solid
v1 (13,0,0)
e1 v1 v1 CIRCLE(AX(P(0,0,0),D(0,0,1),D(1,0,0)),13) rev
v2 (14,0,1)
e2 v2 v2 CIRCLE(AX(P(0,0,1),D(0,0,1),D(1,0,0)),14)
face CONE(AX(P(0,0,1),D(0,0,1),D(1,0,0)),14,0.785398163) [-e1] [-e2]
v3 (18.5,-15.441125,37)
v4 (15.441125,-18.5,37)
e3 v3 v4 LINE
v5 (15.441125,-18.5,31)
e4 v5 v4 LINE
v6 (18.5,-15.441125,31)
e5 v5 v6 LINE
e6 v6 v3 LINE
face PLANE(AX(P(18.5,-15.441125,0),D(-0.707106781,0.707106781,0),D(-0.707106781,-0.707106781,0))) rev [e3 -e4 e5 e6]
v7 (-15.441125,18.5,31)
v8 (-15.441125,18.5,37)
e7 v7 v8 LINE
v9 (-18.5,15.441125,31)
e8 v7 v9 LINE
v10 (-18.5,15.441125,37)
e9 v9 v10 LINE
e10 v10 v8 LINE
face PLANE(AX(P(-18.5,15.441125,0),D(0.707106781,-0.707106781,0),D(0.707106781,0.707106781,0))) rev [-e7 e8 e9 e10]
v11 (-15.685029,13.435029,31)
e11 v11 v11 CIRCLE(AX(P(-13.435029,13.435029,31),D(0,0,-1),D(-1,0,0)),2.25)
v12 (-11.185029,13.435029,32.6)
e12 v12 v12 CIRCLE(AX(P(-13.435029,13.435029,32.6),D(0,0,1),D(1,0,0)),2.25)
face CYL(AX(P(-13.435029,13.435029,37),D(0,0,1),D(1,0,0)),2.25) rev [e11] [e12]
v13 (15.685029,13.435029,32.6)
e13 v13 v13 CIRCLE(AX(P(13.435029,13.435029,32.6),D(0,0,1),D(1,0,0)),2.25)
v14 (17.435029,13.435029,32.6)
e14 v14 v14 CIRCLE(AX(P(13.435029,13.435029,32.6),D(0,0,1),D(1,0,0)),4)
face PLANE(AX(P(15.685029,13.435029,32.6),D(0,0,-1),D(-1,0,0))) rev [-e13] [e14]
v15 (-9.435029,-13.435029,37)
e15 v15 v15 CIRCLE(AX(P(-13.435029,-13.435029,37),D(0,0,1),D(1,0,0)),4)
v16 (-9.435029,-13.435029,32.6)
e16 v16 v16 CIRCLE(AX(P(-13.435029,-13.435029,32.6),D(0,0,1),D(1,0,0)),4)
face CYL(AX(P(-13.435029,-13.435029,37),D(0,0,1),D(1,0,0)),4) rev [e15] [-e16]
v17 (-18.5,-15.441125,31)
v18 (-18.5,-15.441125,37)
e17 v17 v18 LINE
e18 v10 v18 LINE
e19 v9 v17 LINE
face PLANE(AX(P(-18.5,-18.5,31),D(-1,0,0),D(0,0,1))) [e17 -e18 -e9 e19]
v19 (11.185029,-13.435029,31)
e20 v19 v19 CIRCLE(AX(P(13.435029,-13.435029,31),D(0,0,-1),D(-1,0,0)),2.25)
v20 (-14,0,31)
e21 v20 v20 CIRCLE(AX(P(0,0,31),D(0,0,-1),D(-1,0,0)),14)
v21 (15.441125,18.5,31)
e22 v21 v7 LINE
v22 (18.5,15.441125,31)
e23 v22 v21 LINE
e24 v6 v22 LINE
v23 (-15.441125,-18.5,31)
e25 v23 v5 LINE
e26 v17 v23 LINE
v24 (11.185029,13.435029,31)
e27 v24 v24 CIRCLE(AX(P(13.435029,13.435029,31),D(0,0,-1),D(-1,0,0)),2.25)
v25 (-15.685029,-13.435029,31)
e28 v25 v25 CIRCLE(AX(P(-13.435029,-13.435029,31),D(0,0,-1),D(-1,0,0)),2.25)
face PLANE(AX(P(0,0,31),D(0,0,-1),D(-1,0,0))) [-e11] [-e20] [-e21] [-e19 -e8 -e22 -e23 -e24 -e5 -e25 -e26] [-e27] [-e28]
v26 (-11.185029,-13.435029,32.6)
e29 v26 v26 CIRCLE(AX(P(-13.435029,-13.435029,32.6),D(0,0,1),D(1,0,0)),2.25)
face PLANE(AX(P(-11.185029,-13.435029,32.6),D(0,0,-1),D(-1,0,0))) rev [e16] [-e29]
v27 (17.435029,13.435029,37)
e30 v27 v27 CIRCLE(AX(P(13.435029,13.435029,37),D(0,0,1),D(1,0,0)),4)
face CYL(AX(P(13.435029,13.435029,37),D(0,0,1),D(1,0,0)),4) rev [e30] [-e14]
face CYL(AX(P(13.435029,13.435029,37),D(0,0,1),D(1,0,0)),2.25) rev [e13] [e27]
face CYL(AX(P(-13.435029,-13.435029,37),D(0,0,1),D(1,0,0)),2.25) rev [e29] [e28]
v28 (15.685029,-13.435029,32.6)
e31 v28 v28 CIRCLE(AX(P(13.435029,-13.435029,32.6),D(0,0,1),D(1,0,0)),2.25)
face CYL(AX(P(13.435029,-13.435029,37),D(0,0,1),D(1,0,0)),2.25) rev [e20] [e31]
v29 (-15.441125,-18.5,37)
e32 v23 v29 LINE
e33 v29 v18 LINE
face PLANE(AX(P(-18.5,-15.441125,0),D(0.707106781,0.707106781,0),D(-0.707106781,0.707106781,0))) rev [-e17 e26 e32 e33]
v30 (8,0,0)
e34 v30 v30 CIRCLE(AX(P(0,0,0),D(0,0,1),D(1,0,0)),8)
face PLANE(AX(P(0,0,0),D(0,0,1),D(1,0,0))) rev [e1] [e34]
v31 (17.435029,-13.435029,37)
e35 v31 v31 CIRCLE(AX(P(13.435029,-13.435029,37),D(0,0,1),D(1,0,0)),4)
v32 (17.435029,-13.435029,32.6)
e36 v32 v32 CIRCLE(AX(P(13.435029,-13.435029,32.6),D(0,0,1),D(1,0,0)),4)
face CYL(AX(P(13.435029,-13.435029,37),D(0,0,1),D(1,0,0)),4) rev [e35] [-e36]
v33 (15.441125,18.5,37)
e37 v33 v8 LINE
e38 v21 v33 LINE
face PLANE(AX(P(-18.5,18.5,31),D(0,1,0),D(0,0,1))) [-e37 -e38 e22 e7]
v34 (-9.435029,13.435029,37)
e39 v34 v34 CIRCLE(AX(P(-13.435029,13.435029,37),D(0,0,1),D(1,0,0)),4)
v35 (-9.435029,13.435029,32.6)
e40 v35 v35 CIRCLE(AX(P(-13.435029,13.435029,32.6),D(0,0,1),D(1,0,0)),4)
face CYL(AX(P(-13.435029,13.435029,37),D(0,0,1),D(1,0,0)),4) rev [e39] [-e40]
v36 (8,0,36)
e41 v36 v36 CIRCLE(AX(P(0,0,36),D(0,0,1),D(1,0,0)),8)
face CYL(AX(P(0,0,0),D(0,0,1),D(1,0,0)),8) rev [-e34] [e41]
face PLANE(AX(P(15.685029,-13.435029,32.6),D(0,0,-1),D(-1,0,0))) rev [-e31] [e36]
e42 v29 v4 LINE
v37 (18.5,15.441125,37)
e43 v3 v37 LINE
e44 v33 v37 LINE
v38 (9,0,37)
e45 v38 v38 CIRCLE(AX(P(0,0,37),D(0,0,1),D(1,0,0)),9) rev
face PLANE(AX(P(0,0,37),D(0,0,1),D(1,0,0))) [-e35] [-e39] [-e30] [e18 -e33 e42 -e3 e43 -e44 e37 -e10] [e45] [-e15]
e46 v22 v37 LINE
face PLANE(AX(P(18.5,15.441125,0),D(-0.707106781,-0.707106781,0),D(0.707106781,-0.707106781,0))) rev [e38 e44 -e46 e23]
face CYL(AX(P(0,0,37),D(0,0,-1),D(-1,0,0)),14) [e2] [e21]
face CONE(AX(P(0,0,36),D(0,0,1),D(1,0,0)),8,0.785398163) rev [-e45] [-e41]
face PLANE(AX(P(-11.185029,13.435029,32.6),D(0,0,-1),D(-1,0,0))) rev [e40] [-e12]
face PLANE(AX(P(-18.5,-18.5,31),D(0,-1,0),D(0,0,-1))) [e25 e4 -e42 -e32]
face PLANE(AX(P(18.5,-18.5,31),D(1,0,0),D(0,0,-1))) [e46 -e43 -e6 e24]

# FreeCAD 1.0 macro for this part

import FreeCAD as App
import Part
import Sketcher


def edges_at(feature, points):
    """Names of the edges that pass closest to the given points."""
    edges = feature.Shape.Edges
    near = lambda p: min(range(len(edges)), key=lambda i: edges[i].distToShape(Part.Vertex(*p))[0])
    return sorted({f"Edge{near(p) + 1}" for p in points})


def add_polygon(sketch, points):
    """Adds a closed chain of lines whose ends are joined by coincident constraints."""
    first, n = sketch.GeometryCount, len(points)
    for a, b in zip(points, points[1:] + points[:1]):
        sketch.addGeometry(Part.LineSegment(App.Vector(*a, 0), App.Vector(*b, 0)), False)
    for i in range(n):
        sketch.addConstraint(Sketcher.Constraint("Coincident", first + i, 2, first + (i + 1) % n, 1))

doc = App.newDocument("Part")
body = doc.addObject("PartDesign::Body", "Body")

# Sketch on XY plane
sketch1 = body.newObject("Sketcher::SketchObject", "Sketch")
sketch1.AttachmentSupport = (doc.getObject("XY_Plane"), [""])
sketch1.MapMode = "FlatFace"
sketch1.addGeometry(Part.Circle(App.Vector(0, 0, 0), App.Vector(0, 0, 1), 14), False)
sketch1.addConstraint([
    Sketcher.Constraint("Coincident", 0, 3, -1, 1),
    Sketcher.Constraint("Diameter", 0, 28.0),
])
pad1 = body.newObject("PartDesign::Pad", "Pad")
pad1.Profile = sketch1
pad1.Length = 37

# Sketch on XY plane
sketch2 = body.newObject("Sketcher::SketchObject", "Sketch001")
sketch2.AttachmentSupport = (doc.getObject("XY_Plane"), [""])
sketch2.MapMode = "FlatFace"
sketch2.AttachmentOffset = App.Placement(App.Vector(0, 0, 37), App.Rotation())
add_polygon(sketch2, [(-18, 18), (-18, -18), (18, -18), (18, 18)])  # lines 0-3
sketch2.addConstraint([
    Sketcher.Constraint("Vertical", 0),
    Sketcher.Constraint("Horizontal", 1),
    Sketcher.Constraint("Vertical", 2),
    Sketcher.Constraint("Horizontal", 3),
    Sketcher.Constraint("Symmetric", 0, 2, 2, 2, -1, 1),
    Sketcher.Constraint("Equal", 3, 0),
    Sketcher.Constraint("DistanceX", 1, 1, 1, 2, 37.0),
])
pad2 = body.newObject("PartDesign::Pad", "Pad001")
pad2.Profile = sketch2
pad2.Length = 6
pad2.Reversed = True

# Sketch on XY plane
sketch3 = body.newObject("Sketcher::SketchObject", "Sketch002")
sketch3.AttachmentSupport = (doc.getObject("XY_Plane"), [""])
sketch3.MapMode = "FlatFace"
sketch3.AttachmentOffset = App.Placement(App.Vector(0, 0, 37), App.Rotation())
add_polygon(sketch3, [(-18.5, 18.5), (-18.5, 15.4), (-15.4, 18.5)])  # lines 0-2
add_polygon(sketch3, [(18.5, 18.5), (15.4, 18.5), (18.5, 15.4)])  # lines 3-5
add_polygon(sketch3, [(18.5, -18.5), (18.5, -15.4), (15.4, -18.5)])  # lines 6-8
add_polygon(sketch3, [(-18.5, -18.5), (-15.4, -18.5), (-18.5, -15.4)])  # lines 9-11
sketch3.addConstraint([
    Sketcher.Constraint("Vertical", 0),
    Sketcher.Constraint("Horizontal", 2),
    Sketcher.Constraint("Horizontal", 3),
    Sketcher.Constraint("Vertical", 5),
    Sketcher.Constraint("Vertical", 6),
    Sketcher.Constraint("Horizontal", 8),
    Sketcher.Constraint("Horizontal", 9),
    Sketcher.Constraint("Vertical", 11),
    Sketcher.Constraint("Symmetric", 0, 2, 6, 2, -1, 1),
    Sketcher.Constraint("Symmetric", 1, 2, 7, 2, -1, 1),
    Sketcher.Constraint("Symmetric", 3, 2, 9, 2, -1, 1),
    Sketcher.Constraint("Symmetric", 4, 2, 10, 2, -1, 1),
    Sketcher.Constraint("Symmetric", 1, 2, 3, 2, -2),
    Sketcher.Constraint("Symmetric", 0, 2, 4, 2, -2),
    Sketcher.Constraint("Perpendicular", 1, 4),
    Sketcher.Constraint("DistanceX", 0, 2, 4, 2, 37.0),
    Sketcher.Constraint("DistanceY", 7, 2, 3, 2, 37.0),
    Sketcher.Constraint("Distance", 1, 4.325902),
])
pocket1 = body.newObject("PartDesign::Pocket", "Pocket")
pocket1.Profile = sketch3
pocket1.Type = "ThroughAll"

# Sketch on XY plane
sketch4 = body.newObject("Sketcher::SketchObject", "Sketch003")
sketch4.AttachmentSupport = (doc.getObject("XY_Plane"), [""])
sketch4.MapMode = "FlatFace"
sketch4.AttachmentOffset = App.Placement(App.Vector(0, 0, 37), App.Rotation())
sketch4.addGeometry([
    Part.Circle(App.Vector(-13.4, 13.4, 0), App.Vector(0, 0, 1), 2.2),
    Part.Circle(App.Vector(13.4, 13.4, 0), App.Vector(0, 0, 1), 2.2),
    Part.Circle(App.Vector(13.4, -13.4, 0), App.Vector(0, 0, 1), 2.2),
    Part.Circle(App.Vector(-13.4, -13.4, 0), App.Vector(0, 0, 1), 2.2),
], False)
sketch4.addConstraint([
    Sketcher.Constraint("Equal", 0, 1),
    Sketcher.Constraint("Equal", 1, 2),
    Sketcher.Constraint("Equal", 2, 3),
    Sketcher.Constraint("Symmetric", 0, 3, 2, 3, -1, 1),
    Sketcher.Constraint("Symmetric", 1, 3, 3, 3, -1, 1),
    Sketcher.Constraint("Symmetric", 0, 3, 1, 3, -2),
    Sketcher.Constraint("Diameter", 0, 4.5),
    Sketcher.Constraint("DistanceX", 0, 3, -1, 1, 13.435029),
    Sketcher.Constraint("DistanceY", -1, 1, 0, 3, 13.435029),
])
doc.recompute()
hole = body.newObject("PartDesign::Hole", "Hole")
hole.Profile = sketch4
hole.ThreadType = "None"
hole.Diameter = 4.5
hole.DepthType = "Dimension"
hole.Depth = 22
hole.DrillPoint = "Angled"
hole.DrillPointAngle = 118
hole.HoleCutType = "Counterbore"
hole.HoleCutDiameter = 8
hole.HoleCutDepth = 4.4

# Sketch on XY plane
sketch5 = body.newObject("Sketcher::SketchObject", "Sketch004")
sketch5.AttachmentSupport = (doc.getObject("XY_Plane"), [""])
sketch5.MapMode = "FlatFace"
sketch5.AttachmentOffset = App.Placement(App.Vector(0, 0, 37), App.Rotation())
sketch5.addGeometry(Part.Circle(App.Vector(0, 0, 0), App.Vector(0, 0, 1), 8), False)
sketch5.addConstraint([
    Sketcher.Constraint("Coincident", 0, 3, -1, 1),
    Sketcher.Constraint("Diameter", 0, 16.0),
])
pocket2 = body.newObject("PartDesign::Pocket", "Pocket001")
pocket2.Profile = sketch5
pocket2.Type = "ThroughAll"
doc.recompute()

chamfer = body.newObject("PartDesign::Chamfer", "Chamfer")
chamfer.Base = (pocket2, edges_at(pocket2, [(-8, 0, 37), (-14, 0, 0)]))
chamfer.Size = 1

doc.recompute()
